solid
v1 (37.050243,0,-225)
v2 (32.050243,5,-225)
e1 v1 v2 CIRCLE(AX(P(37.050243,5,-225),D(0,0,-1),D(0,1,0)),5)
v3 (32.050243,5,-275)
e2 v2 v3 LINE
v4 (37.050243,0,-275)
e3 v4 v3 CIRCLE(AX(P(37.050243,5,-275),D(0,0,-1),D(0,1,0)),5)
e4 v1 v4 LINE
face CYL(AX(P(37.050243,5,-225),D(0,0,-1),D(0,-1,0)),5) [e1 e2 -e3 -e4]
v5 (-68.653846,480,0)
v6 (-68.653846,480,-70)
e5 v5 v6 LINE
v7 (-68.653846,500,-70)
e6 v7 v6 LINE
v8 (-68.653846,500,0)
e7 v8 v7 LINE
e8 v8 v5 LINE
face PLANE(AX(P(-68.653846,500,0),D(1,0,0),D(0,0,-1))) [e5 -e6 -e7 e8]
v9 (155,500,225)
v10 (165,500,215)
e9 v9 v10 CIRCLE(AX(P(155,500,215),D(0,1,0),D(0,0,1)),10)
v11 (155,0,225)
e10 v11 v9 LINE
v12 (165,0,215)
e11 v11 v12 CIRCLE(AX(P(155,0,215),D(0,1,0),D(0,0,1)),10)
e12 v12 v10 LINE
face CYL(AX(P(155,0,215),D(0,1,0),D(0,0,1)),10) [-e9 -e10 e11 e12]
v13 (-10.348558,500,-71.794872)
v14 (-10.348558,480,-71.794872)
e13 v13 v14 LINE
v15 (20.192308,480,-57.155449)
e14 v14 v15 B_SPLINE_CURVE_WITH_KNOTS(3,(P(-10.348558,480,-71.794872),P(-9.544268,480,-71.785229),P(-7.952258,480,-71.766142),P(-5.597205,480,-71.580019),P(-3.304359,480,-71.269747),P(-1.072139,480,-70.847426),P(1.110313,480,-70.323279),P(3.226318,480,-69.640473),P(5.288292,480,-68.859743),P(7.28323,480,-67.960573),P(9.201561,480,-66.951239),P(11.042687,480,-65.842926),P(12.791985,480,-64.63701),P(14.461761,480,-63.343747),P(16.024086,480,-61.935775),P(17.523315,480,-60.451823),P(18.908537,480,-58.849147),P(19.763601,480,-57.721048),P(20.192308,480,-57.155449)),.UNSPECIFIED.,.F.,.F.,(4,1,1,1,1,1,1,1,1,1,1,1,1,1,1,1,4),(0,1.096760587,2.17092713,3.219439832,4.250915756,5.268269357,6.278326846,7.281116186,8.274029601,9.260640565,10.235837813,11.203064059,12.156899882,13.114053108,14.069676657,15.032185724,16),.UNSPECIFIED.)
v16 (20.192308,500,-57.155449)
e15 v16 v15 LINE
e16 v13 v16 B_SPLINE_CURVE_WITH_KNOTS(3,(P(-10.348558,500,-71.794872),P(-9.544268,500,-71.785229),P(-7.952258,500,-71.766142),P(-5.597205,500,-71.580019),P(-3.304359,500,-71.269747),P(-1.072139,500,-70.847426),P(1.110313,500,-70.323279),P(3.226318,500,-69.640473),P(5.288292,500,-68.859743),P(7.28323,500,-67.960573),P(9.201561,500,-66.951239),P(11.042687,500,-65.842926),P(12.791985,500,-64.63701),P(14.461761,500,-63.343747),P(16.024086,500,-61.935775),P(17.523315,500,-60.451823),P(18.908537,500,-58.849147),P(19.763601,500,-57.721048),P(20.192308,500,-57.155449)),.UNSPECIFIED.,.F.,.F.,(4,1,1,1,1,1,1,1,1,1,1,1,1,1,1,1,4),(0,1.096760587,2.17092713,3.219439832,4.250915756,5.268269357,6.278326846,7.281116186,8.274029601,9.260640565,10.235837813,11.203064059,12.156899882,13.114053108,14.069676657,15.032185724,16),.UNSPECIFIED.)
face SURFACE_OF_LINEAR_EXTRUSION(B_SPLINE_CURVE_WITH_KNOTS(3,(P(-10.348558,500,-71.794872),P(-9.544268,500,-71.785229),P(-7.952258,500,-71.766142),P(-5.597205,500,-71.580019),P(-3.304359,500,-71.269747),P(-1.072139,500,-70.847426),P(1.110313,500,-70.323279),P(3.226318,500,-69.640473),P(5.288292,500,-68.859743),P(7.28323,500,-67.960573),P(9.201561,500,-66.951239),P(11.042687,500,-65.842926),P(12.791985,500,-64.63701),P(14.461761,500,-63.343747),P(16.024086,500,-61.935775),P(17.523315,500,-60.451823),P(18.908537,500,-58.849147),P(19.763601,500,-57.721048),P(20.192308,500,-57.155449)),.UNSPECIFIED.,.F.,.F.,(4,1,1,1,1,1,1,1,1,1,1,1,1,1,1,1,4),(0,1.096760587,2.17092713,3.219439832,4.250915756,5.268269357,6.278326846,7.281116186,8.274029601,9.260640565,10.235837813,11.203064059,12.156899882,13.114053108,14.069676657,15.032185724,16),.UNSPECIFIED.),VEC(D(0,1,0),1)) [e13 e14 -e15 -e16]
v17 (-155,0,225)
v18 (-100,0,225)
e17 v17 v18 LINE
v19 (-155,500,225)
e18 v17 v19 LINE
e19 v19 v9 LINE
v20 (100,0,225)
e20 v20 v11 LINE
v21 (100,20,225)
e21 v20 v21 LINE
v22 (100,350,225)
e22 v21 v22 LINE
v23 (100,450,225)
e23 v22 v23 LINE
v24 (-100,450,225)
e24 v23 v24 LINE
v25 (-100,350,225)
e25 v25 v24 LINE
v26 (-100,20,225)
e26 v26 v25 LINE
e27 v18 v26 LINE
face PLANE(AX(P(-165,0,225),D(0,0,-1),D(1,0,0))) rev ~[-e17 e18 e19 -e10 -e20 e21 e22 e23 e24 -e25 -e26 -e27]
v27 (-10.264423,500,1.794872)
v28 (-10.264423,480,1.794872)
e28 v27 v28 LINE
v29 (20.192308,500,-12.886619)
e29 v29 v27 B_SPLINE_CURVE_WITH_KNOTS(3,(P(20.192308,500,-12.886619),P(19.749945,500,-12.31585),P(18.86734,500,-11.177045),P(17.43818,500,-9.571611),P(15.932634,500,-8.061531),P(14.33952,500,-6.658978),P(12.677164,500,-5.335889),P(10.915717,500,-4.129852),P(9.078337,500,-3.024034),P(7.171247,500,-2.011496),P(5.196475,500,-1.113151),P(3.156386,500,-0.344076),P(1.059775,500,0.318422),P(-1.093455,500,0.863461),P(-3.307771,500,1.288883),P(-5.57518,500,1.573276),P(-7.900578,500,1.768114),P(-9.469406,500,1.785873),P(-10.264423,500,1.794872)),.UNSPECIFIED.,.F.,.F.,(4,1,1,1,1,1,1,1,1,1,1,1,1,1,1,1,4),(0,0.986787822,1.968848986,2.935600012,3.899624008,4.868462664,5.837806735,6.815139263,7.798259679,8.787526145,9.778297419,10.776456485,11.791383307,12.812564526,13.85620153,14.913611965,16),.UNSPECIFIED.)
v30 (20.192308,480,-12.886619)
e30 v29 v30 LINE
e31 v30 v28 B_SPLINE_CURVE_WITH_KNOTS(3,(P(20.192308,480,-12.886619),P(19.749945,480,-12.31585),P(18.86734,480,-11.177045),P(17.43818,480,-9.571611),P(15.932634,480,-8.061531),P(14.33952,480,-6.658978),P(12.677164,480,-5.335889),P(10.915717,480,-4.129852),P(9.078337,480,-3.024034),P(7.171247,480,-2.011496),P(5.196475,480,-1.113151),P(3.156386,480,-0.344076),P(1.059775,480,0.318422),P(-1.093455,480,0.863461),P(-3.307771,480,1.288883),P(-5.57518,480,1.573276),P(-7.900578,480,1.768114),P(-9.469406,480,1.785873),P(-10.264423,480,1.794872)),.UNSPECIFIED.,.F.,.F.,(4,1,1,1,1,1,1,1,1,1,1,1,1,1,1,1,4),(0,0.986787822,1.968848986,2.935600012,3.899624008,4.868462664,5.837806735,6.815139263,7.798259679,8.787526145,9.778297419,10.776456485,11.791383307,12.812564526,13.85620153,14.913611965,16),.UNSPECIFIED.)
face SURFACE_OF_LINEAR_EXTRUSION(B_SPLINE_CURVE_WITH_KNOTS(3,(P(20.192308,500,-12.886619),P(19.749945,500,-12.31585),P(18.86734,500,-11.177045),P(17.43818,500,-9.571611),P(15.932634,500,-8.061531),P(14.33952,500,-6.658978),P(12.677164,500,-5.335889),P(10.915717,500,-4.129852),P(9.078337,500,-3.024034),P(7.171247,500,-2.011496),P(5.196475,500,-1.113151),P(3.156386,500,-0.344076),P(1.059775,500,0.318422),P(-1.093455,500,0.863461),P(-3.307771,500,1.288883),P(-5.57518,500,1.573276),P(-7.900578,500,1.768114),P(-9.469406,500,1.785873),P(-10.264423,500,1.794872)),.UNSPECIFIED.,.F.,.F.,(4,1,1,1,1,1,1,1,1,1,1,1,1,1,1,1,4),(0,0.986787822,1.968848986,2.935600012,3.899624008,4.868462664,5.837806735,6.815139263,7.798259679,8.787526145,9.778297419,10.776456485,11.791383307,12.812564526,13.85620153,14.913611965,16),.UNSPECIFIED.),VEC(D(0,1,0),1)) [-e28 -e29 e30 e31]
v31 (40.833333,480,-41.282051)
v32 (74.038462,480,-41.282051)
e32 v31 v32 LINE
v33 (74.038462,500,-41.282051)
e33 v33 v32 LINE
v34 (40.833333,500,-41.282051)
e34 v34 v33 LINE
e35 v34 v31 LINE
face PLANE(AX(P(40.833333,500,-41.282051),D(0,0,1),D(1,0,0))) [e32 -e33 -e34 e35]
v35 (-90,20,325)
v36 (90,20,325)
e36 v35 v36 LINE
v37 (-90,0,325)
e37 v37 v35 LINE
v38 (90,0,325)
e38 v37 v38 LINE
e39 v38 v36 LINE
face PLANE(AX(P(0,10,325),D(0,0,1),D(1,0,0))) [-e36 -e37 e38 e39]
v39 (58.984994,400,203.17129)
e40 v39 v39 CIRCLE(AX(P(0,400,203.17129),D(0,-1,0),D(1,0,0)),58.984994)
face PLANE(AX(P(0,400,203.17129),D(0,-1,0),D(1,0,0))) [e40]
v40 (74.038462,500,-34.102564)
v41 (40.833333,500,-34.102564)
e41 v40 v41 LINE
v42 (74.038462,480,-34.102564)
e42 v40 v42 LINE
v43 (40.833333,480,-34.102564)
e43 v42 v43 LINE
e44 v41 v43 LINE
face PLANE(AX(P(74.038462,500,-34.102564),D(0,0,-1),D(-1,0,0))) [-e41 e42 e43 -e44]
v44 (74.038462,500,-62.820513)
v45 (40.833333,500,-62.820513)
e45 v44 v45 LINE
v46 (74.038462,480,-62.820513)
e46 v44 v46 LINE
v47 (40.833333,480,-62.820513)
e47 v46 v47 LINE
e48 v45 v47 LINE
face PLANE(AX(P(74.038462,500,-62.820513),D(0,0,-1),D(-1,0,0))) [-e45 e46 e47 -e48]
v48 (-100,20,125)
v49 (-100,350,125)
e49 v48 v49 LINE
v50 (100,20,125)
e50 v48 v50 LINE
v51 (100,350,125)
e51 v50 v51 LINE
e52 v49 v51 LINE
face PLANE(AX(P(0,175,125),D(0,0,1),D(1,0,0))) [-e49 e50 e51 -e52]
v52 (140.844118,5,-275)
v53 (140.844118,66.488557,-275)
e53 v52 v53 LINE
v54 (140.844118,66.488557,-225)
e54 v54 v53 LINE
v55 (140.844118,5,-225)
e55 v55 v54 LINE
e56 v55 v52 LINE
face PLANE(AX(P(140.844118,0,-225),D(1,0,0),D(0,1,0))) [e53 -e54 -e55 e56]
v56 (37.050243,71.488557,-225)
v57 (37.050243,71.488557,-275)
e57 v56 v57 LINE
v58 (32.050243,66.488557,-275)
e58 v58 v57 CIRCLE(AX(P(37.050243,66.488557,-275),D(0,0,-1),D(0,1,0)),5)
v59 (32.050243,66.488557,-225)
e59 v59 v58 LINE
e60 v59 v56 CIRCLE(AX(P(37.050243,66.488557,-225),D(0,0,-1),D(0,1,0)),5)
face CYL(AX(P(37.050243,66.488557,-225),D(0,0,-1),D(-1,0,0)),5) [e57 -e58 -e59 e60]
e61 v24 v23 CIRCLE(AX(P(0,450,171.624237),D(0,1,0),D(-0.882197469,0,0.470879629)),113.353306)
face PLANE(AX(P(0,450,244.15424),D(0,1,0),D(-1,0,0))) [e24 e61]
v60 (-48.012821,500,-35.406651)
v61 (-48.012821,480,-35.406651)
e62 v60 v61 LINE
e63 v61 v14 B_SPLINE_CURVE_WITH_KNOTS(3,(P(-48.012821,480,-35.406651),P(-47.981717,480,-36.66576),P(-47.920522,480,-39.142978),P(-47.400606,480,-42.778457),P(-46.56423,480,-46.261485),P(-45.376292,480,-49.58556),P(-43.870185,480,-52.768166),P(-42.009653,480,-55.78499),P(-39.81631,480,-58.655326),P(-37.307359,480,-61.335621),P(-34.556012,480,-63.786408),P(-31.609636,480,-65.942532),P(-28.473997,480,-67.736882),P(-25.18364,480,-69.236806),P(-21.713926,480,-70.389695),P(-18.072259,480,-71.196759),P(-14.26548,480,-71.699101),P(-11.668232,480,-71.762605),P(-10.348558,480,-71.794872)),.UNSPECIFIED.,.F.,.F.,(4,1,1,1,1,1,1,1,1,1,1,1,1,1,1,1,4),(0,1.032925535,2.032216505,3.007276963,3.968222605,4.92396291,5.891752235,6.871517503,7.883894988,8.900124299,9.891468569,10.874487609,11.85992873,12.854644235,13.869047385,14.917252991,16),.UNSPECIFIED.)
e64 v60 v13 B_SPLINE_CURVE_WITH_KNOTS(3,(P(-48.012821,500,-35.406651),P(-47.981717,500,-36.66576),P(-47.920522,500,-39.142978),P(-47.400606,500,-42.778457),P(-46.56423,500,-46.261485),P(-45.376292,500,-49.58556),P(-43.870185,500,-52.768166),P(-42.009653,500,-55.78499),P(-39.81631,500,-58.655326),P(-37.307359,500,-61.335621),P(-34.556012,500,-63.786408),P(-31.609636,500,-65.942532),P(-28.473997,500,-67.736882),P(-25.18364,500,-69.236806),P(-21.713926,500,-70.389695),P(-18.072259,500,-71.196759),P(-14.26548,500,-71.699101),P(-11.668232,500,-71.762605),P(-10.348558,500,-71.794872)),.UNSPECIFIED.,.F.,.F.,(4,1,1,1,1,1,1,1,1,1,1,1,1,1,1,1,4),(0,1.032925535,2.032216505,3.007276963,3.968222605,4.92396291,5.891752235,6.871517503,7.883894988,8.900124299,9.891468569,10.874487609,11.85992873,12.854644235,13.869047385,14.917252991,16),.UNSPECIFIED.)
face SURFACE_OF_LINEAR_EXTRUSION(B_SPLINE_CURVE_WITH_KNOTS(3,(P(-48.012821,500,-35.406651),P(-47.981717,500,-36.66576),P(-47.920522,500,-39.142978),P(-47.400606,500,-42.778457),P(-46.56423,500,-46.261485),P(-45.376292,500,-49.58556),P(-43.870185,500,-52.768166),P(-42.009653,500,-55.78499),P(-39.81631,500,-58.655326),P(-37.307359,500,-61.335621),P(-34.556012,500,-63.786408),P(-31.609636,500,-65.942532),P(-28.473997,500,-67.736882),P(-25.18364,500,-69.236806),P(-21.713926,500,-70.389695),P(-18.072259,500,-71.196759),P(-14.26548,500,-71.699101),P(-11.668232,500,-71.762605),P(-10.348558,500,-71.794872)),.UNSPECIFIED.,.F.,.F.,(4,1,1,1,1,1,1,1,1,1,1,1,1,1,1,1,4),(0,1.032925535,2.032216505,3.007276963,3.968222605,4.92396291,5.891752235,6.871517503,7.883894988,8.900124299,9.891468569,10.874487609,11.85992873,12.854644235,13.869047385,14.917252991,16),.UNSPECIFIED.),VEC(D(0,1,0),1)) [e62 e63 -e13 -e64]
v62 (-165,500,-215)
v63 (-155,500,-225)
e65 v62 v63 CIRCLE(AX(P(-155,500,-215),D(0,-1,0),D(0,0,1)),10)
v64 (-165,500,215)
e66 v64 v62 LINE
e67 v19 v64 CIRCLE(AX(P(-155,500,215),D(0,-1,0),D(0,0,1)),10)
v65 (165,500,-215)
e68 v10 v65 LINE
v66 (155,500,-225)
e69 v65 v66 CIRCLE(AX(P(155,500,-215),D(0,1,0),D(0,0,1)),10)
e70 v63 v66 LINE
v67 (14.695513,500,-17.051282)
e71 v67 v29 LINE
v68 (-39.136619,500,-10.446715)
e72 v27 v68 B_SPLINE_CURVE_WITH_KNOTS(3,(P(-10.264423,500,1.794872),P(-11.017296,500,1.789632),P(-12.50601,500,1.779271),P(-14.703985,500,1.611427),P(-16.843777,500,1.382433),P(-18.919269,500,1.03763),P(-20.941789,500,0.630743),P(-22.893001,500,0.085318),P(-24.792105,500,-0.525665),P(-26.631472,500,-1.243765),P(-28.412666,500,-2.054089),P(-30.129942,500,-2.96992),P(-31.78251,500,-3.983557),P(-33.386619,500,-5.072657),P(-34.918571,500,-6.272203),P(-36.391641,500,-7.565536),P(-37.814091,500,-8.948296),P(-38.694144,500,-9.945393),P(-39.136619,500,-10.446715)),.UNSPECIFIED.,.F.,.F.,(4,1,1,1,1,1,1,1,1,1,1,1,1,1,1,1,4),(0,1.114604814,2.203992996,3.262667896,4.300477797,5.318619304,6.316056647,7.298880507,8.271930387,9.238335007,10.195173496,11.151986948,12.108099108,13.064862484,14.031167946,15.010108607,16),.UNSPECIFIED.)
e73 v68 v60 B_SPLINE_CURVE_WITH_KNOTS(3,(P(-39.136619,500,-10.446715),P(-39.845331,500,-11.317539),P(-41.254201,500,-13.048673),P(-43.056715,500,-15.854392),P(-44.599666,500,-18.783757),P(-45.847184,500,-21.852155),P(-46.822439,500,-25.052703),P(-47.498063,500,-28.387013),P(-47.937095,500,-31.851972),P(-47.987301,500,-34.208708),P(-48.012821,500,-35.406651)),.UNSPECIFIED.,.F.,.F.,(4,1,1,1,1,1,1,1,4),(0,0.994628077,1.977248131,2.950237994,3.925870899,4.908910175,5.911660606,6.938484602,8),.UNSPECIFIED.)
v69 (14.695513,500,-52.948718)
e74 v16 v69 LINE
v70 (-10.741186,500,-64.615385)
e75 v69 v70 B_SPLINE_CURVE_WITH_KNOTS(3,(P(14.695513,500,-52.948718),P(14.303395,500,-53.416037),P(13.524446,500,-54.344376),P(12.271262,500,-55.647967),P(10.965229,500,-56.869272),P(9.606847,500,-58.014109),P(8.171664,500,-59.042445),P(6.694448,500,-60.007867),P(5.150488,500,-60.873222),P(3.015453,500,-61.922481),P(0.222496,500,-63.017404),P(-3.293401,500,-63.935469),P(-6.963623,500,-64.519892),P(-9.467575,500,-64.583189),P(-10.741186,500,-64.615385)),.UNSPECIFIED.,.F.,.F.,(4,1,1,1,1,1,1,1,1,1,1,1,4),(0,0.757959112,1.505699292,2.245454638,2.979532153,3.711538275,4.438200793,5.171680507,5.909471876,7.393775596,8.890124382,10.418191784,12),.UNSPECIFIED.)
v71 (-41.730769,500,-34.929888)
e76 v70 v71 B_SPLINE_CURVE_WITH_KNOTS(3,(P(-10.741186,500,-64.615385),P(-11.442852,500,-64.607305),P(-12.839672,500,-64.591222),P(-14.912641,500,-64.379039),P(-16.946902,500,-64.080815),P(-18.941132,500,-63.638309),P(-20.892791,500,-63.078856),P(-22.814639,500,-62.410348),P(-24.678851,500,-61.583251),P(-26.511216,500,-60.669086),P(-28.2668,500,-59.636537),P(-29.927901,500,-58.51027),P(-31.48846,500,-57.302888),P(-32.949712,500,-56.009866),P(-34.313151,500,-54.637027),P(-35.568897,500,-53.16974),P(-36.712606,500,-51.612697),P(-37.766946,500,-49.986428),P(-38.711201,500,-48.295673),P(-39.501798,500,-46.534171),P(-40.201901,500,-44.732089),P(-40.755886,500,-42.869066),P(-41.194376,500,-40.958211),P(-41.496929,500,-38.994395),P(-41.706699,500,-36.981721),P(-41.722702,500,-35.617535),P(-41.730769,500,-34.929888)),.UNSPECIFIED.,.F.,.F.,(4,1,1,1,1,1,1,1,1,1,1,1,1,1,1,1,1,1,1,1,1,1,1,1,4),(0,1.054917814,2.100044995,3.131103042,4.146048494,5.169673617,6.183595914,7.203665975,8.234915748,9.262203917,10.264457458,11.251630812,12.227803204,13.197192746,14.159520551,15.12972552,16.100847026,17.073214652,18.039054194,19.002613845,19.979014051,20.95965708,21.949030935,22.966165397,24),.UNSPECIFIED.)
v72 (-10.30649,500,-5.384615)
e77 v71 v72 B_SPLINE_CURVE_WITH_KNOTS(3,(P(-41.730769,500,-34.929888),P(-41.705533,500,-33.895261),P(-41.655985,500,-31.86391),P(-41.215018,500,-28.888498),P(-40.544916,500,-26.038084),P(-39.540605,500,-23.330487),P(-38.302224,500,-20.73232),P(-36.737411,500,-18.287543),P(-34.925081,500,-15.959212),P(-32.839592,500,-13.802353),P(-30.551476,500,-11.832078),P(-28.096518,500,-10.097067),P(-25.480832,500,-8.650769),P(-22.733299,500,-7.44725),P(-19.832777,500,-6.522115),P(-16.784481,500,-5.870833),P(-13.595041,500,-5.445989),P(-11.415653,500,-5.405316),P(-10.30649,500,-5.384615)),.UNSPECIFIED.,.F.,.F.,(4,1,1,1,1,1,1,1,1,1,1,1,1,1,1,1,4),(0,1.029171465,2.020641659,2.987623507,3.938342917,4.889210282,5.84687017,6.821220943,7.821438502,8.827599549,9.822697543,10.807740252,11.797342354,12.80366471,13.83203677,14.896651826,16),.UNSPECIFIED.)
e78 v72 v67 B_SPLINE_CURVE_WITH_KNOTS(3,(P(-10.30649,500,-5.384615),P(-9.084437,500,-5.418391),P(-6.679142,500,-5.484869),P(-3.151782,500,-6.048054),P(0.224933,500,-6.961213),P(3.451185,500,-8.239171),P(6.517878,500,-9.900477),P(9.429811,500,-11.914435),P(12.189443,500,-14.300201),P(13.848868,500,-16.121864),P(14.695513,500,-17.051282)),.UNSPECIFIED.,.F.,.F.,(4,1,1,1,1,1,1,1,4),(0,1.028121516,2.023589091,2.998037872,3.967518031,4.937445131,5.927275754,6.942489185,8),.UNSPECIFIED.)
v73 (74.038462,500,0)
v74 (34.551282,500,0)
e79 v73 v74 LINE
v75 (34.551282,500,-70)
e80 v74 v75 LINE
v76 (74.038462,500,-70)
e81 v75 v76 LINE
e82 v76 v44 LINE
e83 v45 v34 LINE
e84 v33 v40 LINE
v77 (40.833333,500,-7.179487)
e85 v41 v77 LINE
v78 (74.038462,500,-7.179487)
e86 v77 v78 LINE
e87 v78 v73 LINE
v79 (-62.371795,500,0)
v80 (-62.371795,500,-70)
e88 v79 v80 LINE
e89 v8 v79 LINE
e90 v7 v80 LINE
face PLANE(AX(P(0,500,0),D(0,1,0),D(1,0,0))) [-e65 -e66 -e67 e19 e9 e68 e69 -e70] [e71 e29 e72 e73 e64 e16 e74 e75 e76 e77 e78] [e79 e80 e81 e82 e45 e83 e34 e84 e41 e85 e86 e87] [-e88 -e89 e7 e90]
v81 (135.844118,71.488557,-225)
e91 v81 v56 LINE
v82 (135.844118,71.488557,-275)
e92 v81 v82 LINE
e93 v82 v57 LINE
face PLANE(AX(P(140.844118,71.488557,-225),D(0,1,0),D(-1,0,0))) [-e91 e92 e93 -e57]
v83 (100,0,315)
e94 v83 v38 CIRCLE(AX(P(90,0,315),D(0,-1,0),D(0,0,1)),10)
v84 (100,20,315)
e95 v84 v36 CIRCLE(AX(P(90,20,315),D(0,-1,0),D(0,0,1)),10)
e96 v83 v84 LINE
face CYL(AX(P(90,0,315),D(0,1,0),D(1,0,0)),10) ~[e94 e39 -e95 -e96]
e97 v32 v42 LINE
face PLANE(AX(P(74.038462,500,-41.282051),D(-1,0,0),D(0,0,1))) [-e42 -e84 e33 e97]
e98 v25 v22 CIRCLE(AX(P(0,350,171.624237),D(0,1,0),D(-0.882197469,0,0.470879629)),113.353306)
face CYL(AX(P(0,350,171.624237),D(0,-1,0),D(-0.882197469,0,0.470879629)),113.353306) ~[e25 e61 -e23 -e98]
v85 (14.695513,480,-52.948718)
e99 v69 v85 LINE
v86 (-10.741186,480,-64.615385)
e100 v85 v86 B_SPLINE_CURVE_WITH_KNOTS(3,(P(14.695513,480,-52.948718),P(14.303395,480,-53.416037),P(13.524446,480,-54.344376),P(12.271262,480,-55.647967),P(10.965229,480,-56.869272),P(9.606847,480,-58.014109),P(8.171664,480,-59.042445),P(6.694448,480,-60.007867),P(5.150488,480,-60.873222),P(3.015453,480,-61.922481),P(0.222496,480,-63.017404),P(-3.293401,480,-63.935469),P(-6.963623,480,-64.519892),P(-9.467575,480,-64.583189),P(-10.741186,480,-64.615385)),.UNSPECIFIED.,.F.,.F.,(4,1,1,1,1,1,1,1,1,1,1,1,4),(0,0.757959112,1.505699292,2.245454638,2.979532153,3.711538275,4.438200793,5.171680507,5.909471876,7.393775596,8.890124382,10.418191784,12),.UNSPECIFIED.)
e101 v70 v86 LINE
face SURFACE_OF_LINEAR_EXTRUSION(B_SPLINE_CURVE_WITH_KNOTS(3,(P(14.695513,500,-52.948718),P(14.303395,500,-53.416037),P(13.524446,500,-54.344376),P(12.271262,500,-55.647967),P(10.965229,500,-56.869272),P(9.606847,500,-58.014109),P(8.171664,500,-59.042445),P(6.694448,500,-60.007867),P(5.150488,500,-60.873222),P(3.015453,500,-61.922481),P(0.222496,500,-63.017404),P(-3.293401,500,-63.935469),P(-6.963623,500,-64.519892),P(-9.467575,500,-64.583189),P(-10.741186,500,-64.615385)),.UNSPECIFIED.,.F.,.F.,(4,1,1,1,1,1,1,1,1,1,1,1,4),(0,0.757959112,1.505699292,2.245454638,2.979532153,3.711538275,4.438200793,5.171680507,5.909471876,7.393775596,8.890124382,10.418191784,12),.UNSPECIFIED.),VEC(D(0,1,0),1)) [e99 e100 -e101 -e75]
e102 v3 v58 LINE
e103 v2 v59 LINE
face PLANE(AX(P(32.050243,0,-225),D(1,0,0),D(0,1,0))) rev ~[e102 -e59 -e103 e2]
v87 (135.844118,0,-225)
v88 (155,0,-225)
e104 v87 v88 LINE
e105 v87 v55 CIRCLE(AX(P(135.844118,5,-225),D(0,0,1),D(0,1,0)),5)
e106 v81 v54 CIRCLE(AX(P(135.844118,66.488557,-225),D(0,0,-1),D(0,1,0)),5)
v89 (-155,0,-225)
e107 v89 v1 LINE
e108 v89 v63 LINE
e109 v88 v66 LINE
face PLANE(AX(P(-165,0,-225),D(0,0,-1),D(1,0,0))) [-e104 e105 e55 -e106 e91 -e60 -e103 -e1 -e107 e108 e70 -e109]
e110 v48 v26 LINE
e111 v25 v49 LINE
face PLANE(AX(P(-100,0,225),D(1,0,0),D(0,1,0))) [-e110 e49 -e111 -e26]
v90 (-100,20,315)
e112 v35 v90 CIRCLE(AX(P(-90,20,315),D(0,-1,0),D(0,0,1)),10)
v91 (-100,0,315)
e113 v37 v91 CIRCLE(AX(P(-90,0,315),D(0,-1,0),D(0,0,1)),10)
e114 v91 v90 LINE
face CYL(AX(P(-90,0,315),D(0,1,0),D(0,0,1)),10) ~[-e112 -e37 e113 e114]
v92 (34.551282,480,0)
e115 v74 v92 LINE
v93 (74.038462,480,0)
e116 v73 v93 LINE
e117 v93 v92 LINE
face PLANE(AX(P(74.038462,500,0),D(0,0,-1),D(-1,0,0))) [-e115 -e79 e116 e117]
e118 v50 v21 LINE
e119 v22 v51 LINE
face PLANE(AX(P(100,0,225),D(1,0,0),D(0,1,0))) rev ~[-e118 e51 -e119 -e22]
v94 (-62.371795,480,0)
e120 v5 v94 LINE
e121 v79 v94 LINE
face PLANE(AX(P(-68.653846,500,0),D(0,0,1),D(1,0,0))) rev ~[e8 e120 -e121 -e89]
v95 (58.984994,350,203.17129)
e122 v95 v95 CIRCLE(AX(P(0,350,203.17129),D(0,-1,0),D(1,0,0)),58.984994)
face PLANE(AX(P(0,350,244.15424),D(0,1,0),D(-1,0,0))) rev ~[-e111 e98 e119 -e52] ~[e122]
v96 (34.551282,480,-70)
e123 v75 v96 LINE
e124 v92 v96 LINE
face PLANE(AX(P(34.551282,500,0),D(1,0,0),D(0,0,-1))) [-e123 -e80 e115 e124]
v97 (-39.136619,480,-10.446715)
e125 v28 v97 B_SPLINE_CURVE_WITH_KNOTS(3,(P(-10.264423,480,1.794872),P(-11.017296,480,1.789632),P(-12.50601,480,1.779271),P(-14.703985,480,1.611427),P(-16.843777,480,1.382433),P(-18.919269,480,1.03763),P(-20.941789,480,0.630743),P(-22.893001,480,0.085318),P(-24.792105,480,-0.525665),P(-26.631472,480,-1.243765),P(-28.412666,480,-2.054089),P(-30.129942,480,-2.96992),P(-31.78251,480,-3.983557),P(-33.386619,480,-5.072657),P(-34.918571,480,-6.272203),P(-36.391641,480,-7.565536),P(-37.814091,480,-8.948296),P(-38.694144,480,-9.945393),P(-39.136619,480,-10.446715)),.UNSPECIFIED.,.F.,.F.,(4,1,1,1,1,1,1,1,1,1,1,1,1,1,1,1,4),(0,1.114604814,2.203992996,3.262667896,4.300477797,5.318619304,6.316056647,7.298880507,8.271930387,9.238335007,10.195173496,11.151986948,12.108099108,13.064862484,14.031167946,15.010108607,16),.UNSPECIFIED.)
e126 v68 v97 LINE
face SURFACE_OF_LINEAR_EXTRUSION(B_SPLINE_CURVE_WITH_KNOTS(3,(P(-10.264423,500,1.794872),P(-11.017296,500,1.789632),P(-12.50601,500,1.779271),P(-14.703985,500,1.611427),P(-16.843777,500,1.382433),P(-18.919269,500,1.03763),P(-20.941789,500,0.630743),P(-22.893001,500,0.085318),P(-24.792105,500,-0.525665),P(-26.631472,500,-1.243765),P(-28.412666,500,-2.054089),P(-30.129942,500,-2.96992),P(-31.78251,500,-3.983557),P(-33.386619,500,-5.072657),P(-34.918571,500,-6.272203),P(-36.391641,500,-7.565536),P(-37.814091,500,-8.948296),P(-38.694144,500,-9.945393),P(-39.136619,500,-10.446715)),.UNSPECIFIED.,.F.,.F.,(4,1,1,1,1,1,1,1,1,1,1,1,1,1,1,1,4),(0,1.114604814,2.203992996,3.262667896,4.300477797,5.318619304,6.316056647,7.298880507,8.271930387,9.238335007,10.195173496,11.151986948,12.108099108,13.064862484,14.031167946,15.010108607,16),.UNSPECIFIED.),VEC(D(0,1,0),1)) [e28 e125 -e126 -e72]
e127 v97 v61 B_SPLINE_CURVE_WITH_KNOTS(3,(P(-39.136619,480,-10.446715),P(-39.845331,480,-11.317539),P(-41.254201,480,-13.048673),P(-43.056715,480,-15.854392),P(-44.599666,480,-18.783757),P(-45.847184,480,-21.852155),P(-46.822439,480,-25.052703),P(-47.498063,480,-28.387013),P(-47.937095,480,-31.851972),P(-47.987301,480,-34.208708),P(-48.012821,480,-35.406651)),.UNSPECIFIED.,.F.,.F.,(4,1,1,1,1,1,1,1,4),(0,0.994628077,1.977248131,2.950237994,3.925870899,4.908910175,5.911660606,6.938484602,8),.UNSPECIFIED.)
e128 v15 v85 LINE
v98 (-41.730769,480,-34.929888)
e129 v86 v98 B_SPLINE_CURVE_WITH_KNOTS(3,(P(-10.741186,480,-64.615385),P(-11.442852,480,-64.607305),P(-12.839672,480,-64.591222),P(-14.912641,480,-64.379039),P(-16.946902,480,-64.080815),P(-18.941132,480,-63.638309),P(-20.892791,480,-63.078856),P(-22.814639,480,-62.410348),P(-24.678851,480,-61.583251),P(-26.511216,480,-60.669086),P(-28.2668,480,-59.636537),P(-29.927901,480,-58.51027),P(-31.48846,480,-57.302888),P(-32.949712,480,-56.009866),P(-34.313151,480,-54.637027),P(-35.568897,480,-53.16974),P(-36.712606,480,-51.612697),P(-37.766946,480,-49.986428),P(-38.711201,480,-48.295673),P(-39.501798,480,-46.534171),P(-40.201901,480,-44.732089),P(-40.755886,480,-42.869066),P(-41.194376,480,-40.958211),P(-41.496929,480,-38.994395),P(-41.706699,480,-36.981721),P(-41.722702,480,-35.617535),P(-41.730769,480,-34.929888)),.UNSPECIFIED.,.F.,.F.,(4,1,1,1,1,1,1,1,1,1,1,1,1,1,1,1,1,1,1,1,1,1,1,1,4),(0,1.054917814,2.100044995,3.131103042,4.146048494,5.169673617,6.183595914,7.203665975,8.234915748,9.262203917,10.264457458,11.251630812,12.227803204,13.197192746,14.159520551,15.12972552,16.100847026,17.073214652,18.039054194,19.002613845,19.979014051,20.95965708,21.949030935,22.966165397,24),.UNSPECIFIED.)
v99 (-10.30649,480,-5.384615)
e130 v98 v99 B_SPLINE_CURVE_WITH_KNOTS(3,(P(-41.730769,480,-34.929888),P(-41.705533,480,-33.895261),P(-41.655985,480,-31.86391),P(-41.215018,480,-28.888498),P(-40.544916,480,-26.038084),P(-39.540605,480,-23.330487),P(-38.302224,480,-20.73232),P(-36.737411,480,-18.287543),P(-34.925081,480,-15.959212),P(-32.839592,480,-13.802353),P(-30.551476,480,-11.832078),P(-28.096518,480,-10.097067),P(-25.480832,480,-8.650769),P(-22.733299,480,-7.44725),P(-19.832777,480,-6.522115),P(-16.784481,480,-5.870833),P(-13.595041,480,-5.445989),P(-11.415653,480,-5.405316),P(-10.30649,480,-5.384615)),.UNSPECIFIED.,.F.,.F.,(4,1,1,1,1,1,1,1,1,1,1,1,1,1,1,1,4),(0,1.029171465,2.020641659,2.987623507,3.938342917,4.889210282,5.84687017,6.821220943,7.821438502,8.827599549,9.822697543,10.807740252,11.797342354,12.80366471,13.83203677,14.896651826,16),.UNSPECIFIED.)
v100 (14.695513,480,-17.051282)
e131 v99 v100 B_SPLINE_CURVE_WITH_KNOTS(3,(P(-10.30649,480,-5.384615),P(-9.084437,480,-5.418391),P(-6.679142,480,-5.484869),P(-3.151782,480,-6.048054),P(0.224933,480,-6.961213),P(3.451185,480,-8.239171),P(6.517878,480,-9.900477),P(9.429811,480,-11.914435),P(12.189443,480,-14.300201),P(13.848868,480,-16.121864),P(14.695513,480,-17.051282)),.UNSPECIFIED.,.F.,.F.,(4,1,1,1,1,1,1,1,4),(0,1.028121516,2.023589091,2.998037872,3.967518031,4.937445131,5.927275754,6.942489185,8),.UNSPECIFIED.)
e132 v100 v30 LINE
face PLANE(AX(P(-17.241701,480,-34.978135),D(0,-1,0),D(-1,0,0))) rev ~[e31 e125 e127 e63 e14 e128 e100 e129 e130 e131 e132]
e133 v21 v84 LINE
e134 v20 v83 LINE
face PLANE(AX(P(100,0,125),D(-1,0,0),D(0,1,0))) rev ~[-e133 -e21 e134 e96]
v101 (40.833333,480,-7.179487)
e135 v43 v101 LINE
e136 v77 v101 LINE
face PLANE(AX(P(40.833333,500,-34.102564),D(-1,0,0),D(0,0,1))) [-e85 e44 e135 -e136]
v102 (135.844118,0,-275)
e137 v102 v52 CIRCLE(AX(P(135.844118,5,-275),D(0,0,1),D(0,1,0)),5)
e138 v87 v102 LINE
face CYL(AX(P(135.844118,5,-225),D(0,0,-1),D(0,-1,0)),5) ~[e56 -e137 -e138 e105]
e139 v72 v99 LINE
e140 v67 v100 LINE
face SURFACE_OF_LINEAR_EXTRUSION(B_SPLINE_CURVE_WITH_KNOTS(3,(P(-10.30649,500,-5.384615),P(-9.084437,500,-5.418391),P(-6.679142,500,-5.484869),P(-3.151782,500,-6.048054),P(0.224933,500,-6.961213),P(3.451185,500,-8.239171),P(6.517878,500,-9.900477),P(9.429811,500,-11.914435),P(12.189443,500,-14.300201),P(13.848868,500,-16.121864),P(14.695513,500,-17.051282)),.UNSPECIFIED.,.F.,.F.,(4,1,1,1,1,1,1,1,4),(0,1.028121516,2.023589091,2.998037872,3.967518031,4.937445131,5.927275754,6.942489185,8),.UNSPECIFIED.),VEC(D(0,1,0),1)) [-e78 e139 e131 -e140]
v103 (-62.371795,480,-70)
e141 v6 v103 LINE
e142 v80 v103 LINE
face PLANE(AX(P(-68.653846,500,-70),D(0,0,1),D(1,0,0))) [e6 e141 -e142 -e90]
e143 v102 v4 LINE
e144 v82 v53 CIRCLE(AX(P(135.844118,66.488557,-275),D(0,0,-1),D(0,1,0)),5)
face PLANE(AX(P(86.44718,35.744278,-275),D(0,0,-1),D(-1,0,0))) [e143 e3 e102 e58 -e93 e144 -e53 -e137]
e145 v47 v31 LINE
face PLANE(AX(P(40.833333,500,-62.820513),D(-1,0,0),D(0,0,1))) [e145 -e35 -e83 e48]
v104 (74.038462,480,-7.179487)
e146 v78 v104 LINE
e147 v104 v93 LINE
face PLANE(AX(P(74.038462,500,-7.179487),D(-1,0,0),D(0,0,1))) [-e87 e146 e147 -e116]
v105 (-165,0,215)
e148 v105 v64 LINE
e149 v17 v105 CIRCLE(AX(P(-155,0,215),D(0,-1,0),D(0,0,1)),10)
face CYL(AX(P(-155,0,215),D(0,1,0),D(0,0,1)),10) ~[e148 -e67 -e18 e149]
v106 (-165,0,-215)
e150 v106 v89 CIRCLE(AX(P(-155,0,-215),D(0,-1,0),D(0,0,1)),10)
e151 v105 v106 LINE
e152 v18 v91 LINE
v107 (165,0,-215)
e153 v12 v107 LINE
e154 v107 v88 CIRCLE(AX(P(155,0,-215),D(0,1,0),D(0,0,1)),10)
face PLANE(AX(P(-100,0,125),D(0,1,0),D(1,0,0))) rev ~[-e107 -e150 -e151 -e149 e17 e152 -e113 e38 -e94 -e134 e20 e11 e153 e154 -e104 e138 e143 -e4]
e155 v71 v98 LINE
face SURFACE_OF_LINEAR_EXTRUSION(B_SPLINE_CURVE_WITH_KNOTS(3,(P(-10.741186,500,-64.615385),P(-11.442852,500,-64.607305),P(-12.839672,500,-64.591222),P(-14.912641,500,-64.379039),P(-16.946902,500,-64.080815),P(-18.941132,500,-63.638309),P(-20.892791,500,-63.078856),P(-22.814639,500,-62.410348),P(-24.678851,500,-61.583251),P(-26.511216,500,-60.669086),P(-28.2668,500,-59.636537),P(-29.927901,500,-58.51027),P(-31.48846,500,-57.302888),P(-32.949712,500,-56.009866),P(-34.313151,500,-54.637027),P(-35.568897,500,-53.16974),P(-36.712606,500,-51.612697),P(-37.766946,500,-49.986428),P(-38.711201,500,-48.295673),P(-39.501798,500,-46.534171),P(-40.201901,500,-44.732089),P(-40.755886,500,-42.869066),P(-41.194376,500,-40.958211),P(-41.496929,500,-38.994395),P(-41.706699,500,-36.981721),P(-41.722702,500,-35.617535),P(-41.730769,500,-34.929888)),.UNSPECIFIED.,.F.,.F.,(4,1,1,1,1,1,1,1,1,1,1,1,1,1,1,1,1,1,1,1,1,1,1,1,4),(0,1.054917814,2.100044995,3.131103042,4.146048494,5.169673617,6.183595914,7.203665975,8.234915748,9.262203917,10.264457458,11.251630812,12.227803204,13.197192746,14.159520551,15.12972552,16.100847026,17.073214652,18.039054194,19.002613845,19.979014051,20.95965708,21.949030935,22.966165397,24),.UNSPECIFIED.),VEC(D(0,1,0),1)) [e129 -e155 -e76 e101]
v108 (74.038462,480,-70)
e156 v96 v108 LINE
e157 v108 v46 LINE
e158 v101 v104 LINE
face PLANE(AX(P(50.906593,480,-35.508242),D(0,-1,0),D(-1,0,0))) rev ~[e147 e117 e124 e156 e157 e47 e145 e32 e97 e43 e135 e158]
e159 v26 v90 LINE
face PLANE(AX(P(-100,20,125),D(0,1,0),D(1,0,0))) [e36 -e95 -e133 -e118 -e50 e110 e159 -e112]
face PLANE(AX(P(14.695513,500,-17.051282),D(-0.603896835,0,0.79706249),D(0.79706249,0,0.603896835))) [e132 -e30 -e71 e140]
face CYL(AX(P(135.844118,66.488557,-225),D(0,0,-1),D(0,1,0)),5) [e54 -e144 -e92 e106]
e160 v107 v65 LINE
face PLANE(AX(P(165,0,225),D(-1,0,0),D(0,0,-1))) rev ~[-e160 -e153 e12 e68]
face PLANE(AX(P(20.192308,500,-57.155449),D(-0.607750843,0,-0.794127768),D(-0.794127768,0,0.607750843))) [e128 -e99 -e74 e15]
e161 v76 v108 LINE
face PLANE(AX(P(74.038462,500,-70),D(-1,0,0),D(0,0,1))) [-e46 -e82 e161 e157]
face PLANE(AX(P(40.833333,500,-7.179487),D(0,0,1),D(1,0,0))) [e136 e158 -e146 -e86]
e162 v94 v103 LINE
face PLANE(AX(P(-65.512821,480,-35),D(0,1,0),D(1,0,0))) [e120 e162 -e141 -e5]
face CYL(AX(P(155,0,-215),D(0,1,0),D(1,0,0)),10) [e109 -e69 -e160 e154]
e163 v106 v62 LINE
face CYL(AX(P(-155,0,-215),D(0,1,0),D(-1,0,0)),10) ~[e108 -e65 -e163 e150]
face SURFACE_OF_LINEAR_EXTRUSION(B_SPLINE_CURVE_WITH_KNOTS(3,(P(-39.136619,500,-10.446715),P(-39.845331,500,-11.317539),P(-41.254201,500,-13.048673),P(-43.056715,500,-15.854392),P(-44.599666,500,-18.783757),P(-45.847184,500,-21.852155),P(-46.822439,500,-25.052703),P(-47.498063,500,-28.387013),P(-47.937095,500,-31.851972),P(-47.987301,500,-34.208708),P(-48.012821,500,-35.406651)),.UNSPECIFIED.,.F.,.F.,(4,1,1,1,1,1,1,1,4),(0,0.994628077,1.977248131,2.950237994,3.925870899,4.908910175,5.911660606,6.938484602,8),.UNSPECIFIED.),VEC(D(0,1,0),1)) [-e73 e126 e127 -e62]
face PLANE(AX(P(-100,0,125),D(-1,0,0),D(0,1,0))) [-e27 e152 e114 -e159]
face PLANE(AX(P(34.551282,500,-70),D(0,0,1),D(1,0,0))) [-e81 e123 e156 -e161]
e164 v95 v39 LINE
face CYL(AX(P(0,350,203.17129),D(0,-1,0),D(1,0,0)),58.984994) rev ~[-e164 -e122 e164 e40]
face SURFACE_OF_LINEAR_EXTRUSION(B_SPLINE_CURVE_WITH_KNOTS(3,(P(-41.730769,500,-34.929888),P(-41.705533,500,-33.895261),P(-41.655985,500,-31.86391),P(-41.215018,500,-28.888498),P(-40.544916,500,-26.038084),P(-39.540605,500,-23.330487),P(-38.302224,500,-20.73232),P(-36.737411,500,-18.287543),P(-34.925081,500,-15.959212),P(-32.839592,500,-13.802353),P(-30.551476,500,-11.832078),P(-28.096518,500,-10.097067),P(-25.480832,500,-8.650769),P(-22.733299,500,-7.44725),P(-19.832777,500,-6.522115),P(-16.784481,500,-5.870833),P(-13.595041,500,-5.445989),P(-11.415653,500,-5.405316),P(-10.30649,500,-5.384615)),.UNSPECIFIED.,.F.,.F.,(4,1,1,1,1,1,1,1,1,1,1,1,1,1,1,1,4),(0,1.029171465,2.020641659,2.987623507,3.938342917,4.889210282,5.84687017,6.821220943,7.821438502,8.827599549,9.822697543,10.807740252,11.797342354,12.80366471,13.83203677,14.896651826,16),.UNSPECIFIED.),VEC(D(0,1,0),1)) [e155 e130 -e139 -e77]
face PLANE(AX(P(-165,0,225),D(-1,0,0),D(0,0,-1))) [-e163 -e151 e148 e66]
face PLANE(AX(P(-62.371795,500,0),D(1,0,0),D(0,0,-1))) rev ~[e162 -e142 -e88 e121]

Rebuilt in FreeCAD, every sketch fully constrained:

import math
import FreeCAD as App
import Part
import Sketcher

V = App.Vector


def edges_at(feature, points):
    """Names of the edges that pass closest to the given points."""
    edges = feature.Shape.Edges
    near = lambda p: min(range(len(edges)), key=lambda i: edges[i].distToShape(Part.Vertex(*p))[0])
    return sorted({f"Edge{near(p) + 1}" for p in points})


def add_polygon(sketch, points):
    """Adds a closed chain of lines whose ends are joined by coincident constraints."""
    first, n = sketch.GeometryCount, len(points)
    for a, b in zip(points, points[1:] + points[:1]):
        sketch.addGeometry(Part.LineSegment(App.Vector(*a, 0), App.Vector(*b, 0)), False)
    for i in range(n):
        sketch.addConstraint(Sketcher.Constraint("Coincident", first + i, 2, first + (i + 1) % n, 1))

doc = App.newDocument("Part")
body = doc.addObject("PartDesign::Body", "Body")

sketch1 = body.newObject("Sketcher::SketchObject", "Sketch")
sketch1.AttachmentSupport = (doc.getObject("XZ_Plane"), [""])
sketch1.MapMode = "FlatFace"
add_polygon(sketch1, [(-165, -225), (-165, 225), (165, 225), (165, -225)])
sketch1.addConstraint([
    Sketcher.Constraint("Vertical", 0),
    Sketcher.Constraint("Horizontal", 1),
    Sketcher.Constraint("Vertical", 2),
    Sketcher.Constraint("Horizontal", 3),
    Sketcher.Constraint("Symmetric", 0, 2, 2, 2, -1, 1),
    Sketcher.Constraint("DistanceX", 1, 1, 1, 2, 330.0),
    Sketcher.Constraint("DistanceY", 0, 1, 0, 2, 450.0),
])
pad1 = body.newObject("PartDesign::Pad", "Pad")
pad1.Profile = sketch1
pad1.Length = 500
pad1.Reversed = True

sketch2 = body.newObject("Sketcher::SketchObject", "Sketch001")
sketch2.AttachmentSupport = (doc.getObject("XY_Plane"), [""])
sketch2.MapMode = "FlatFace"
sketch2.AttachmentOffset = App.Placement(V(0, 0, 225), App.Rotation())
add_polygon(sketch2, [(-100, 350), (-100, 0), (100, 0), (100, 350)])
sketch2.addConstraint([
    Sketcher.Constraint("Vertical", 0),
    Sketcher.Constraint("Horizontal", 1),
    Sketcher.Constraint("Vertical", 2),
    Sketcher.Constraint("Horizontal", 3),
    Sketcher.Constraint("Symmetric", 0, 2, 1, 2, -1, 1),
    Sketcher.Constraint("DistanceX", 1, 1, 1, 2, 200.0),
    Sketcher.Constraint("DistanceY", 0, 2, 0, 1, 350.0),
])
pocket1 = body.newObject("PartDesign::Pocket", "Pocket")
pocket1.Profile = sketch2
pocket1.Length = 100

sketch3 = body.newObject("Sketcher::SketchObject", "Sketch002")
sketch3.AttachmentSupport = (doc.getObject("XZ_Plane"), [""])
sketch3.MapMode = "FlatFace"
sketch3.AttachmentOffset = App.Placement(V(0, 0, -350), App.Rotation())
sketch3.addGeometry([
    Part.LineSegment(V(-100, 225, 0), V(100, 225, 0)),
    Part.ArcOfCircle(Part.Circle(V(0, 172, 0), V(0, 0, 1), 113), math.radians(28), math.radians(152)),
], False)
sketch3.addConstraint([
    Sketcher.Constraint("Coincident", 0, 1, 1, 2),
    Sketcher.Constraint("Coincident", 1, 1, 0, 2),
    Sketcher.Constraint("Horizontal", 0),
    Sketcher.Constraint("PointOnObject", 1, 3, -2),
    Sketcher.Constraint("DistanceX", 0, 1, 0, 2, 200.0),
    Sketcher.Constraint("DistanceY", -1, 1, 0, 1, 225.0),
    Sketcher.Constraint("Radius", 1, 113.353306),
])
pad2 = body.newObject("PartDesign::Pad", "Pad001")
pad2.Profile = sketch3
pad2.Length = 100
pad2.Reversed = True

sketch4 = body.newObject("Sketcher::SketchObject", "Sketch003")
sketch4.AttachmentSupport = (doc.getObject("XY_Plane"), [""])
sketch4.MapMode = "FlatFace"
sketch4.AttachmentOffset = App.Placement(V(0, 0, 125), App.Rotation())
add_polygon(sketch4, [(-100, 20), (-100, 0), (100, 0), (100, 20)])
sketch4.addConstraint([
    Sketcher.Constraint("Vertical", 0),
    Sketcher.Constraint("Horizontal", 1),
    Sketcher.Constraint("Vertical", 2),
    Sketcher.Constraint("Horizontal", 3),
    Sketcher.Constraint("Symmetric", 0, 2, 1, 2, -1, 1),
    Sketcher.Constraint("DistanceX", 1, 1, 1, 2, 200.0),
    Sketcher.Constraint("DistanceY", 0, 2, 0, 1, 20.0),
])
pad3 = body.newObject("PartDesign::Pad", "Pad002")
pad3.Profile = sketch4
pad3.Length = 200

sketch5 = body.newObject("Sketcher::SketchObject", "Sketch004")
sketch5.AttachmentSupport = (doc.getObject("XZ_Plane"), [""])
sketch5.MapMode = "FlatFace"
sketch5.AttachmentOffset = App.Placement(V(0, 0, -350), App.Rotation())
sketch5.addGeometry(Part.Circle(V(0, 203, 0), V(0, 0, 1), 59), False)
sketch5.addConstraint([
    Sketcher.Constraint("PointOnObject", 0, 3, -2),
    Sketcher.Constraint("Diameter", 0, 117.969987),
    Sketcher.Constraint("DistanceY", -1, 1, 0, 3, 203.17129),
])
pocket2 = body.newObject("PartDesign::Pocket", "Pocket001")
pocket2.Profile = sketch5
pocket2.Length = 50
doc.recompute()

fillet = body.newObject("PartDesign::Fillet", "Fillet")
fillet.Base = (pocket2, edges_at(pocket2, [
    (165, 250, 225),
    (-165, 250, 225),
    (-165, 250, -225),
    (165, 250, -225),
]))
fillet.Radius = 10

sketch6 = body.newObject("Sketcher::SketchObject", "Sketch005")
sketch6.AttachmentSupport = (doc.getObject("XY_Plane"), [""])
sketch6.MapMode = "FlatFace"
sketch6.AttachmentOffset = App.Placement(V(0, 0, -225), App.Rotation())
add_polygon(sketch6, [(141, 71), (141, 0), (32, 0), (32, 71)])
sketch6.addConstraint([
    Sketcher.Constraint("Vertical", 0),
    Sketcher.Constraint("Horizontal", 1),
    Sketcher.Constraint("Vertical", 2),
    Sketcher.Constraint("Horizontal", 3),
    Sketcher.Constraint("PointOnObject", 0, 2, -1),
    Sketcher.Constraint("DistanceX", 1, 2, 1, 1, 108.793876),
    Sketcher.Constraint("DistanceY", 0, 2, 0, 1, 71.488557),
    Sketcher.Constraint("DistanceX", -1, 1, 0, 2, 140.844118),
])
pad4 = body.newObject("PartDesign::Pad", "Pad003")
pad4.Profile = sketch6
pad4.Length = 50
pad4.Reversed = True
doc.recompute()

fillet2 = body.newObject("PartDesign::Fillet", "Fillet001")
fillet2.Base = (pad4, edges_at(pad4, [
    (140.844, 71.489, -250),
    (140.844, 0, -250),
    (32.05, 0, -250),
    (32.05, 71.489, -250),
]))
fillet2.Radius = 5
doc.recompute()

fillet3 = body.newObject("PartDesign::Fillet", "Fillet002")
fillet3.Base = (fillet2, edges_at(fillet2, [(-100, 10, 325), (100, 10, 325)]))
fillet3.Radius = 10

sketch7 = body.newObject("Sketcher::SketchObject", "Sketch006")
sketch7.AttachmentSupport = (doc.getObject("XZ_Plane"), [""])
sketch7.MapMode = "FlatFace"
sketch7.AttachmentOffset = App.Placement(V(0, 0, -500), App.Rotation())
add_polygon(sketch7, [(-68.653846, -70), (-68.653846, 0), (-62.371795, 0), (-62.371795, -70)])
sketch7.addGeometry(Part.LineSegment(V(14.695513, -52.948718, 0), V(20.192308, -57.155449, 0)), False)
sketch7.addGeometry(Part.BSplineCurve([V(-10.348558, -71.794872, 0), V(-9.544268, -71.785229, 0), V(-7.952258, -71.766142, 0), V(-5.597205, -71.580019, 0), V(-3.304359, -71.269747, 0), V(-1.072139, -70.847426, 0), V(1.110313, -70.323279, 0), V(3.226318, -69.640473, 0), V(5.288292, -68.859743, 0), V(7.28323, -67.960573, 0), V(9.201561, -66.951239, 0), V(11.042687, -65.842926, 0), V(12.791985, -64.63701, 0), V(14.461761, -63.343747, 0), V(16.024086, -61.935775, 0), V(17.523315, -60.451823, 0), V(18.908537, -58.849147, 0), V(19.763601, -57.721048, 0), V(20.192308, -57.155449, 0)], [4, 1, 1, 1, 1, 1, 1, 1, 1, 1, 1, 1, 1, 1, 1, 1, 4], [0, 1.096760587, 2.17092713, 3.219439832, 4.250915756, 5.268269357, 6.278326846, 7.281116186, 8.274029601, 9.260640565, 10.235837813, 11.203064059, 12.156899882, 13.114053108, 14.069676657, 15.032185724, 16], False, 3, [1, 1, 1, 1, 1, 1, 1, 1, 1, 1, 1, 1, 1, 1, 1, 1, 1, 1, 1], False), False)
sketch7.addGeometry(Part.BSplineCurve([V(-48.012821, -35.406651, 0), V(-47.981717, -36.66576, 0), V(-47.920522, -39.142978, 0), V(-47.400606, -42.778457, 0), V(-46.56423, -46.261485, 0), V(-45.376292, -49.58556, 0), V(-43.870185, -52.768166, 0), V(-42.009653, -55.78499, 0), V(-39.81631, -58.655326, 0), V(-37.307359, -61.335621, 0), V(-34.556012, -63.786408, 0), V(-31.609636, -65.942532, 0), V(-28.473997, -67.736882, 0), V(-25.18364, -69.236806, 0), V(-21.713926, -70.389695, 0), V(-18.072259, -71.196759, 0), V(-14.26548, -71.699101, 0), V(-11.668232, -71.762605, 0), V(-10.348558, -71.794872, 0)], [4, 1, 1, 1, 1, 1, 1, 1, 1, 1, 1, 1, 1, 1, 1, 1, 4], [0, 1.032925535, 2.032216505, 3.007276963, 3.968222605, 4.92396291, 5.891752235, 6.871517503, 7.883894988, 8.900124299, 9.891468569, 10.874487609, 11.85992873, 12.854644235, 13.869047385, 14.917252991, 16], False, 3, [1, 1, 1, 1, 1, 1, 1, 1, 1, 1, 1, 1, 1, 1, 1, 1, 1, 1, 1], False), False)
sketch7.addGeometry(Part.BSplineCurve([V(-39.136619, -10.446715, 0), V(-39.845331, -11.317539, 0), V(-41.254201, -13.048673, 0), V(-43.056715, -15.854392, 0), V(-44.599666, -18.783757, 0), V(-45.847184, -21.852155, 0), V(-46.822439, -25.052703, 0), V(-47.498063, -28.387013, 0), V(-47.937095, -31.851972, 0), V(-47.987301, -34.208708, 0), V(-48.012821, -35.406651, 0)], [4, 1, 1, 1, 1, 1, 1, 1, 4], [0, 0.994628077, 1.977248131, 2.950237994, 3.925870899, 4.908910175, 5.911660606, 6.938484602, 8], False, 3, [1, 1, 1, 1, 1, 1, 1, 1, 1, 1, 1], False), False)
sketch7.addGeometry(Part.BSplineCurve([V(-10.264423, 1.794872, 0), V(-11.017296, 1.789632, 0), V(-12.50601, 1.779271, 0), V(-14.703985, 1.611427, 0), V(-16.843777, 1.382433, 0), V(-18.919269, 1.03763, 0), V(-20.941789, 0.630743, 0), V(-22.893001, 0.085318, 0), V(-24.792105, -0.525665, 0), V(-26.631472, -1.243765, 0), V(-28.412666, -2.054089, 0), V(-30.129942, -2.96992, 0), V(-31.78251, -3.983557, 0), V(-33.386619, -5.072657, 0), V(-34.918571, -6.272203, 0), V(-36.391641, -7.565536, 0), V(-37.814091, -8.948296, 0), V(-38.694144, -9.945393, 0), V(-39.136619, -10.446715, 0)], [4, 1, 1, 1, 1, 1, 1, 1, 1, 1, 1, 1, 1, 1, 1, 1, 4], [0, 1.114604814, 2.203992996, 3.262667896, 4.300477797, 5.318619304, 6.316056647, 7.298880507, 8.271930387, 9.238335007, 10.195173496, 11.151986948, 12.108099108, 13.064862484, 14.031167946, 15.010108607, 16], False, 3, [1, 1, 1, 1, 1, 1, 1, 1, 1, 1, 1, 1, 1, 1, 1, 1, 1, 1, 1], False), False)
sketch7.addGeometry(Part.BSplineCurve([V(20.192308, -12.886619, 0), V(19.749945, -12.31585, 0), V(18.86734, -11.177045, 0), V(17.43818, -9.571611, 0), V(15.932634, -8.061531, 0), V(14.33952, -6.658978, 0), V(12.677164, -5.335889, 0), V(10.915717, -4.129852, 0), V(9.078337, -3.024034, 0), V(7.171247, -2.011496, 0), V(5.196475, -1.113151, 0), V(3.156386, -0.344076, 0), V(1.059775, 0.318422, 0), V(-1.093455, 0.863461, 0), V(-3.307771, 1.288883, 0), V(-5.57518, 1.573276, 0), V(-7.900578, 1.768114, 0), V(-9.469406, 1.785873, 0), V(-10.264423, 1.794872, 0)], [4, 1, 1, 1, 1, 1, 1, 1, 1, 1, 1, 1, 1, 1, 1, 1, 4], [0, 0.986787822, 1.968848986, 2.935600012, 3.899624008, 4.868462664, 5.837806735, 6.815139263, 7.798259679, 8.787526145, 9.778297419, 10.776456485, 11.791383307, 12.812564526, 13.85620153, 14.913611965, 16], False, 3, [1, 1, 1, 1, 1, 1, 1, 1, 1, 1, 1, 1, 1, 1, 1, 1, 1, 1, 1], False), False)
sketch7.addGeometry(Part.LineSegment(V(20.192308, -12.886619, 0), V(14.695513, -17.051282, 0)), False)
sketch7.addGeometry(Part.BSplineCurve([V(-10.30649, -5.384615, 0), V(-9.084437, -5.418391, 0), V(-6.679142, -5.484869, 0), V(-3.151782, -6.048054, 0), V(0.224933, -6.961213, 0), V(3.451185, -8.239171, 0), V(6.517878, -9.900477, 0), V(9.429811, -11.914435, 0), V(12.189443, -14.300201, 0), V(13.848868, -16.121864, 0), V(14.695513, -17.051282, 0)], [4, 1, 1, 1, 1, 1, 1, 1, 4], [0, 1.028121516, 2.023589091, 2.998037872, 3.967518031, 4.937445131, 5.927275754, 6.942489185, 8], False, 3, [1, 1, 1, 1, 1, 1, 1, 1, 1, 1, 1], False), False)
sketch7.addGeometry(Part.BSplineCurve([V(-41.730769, -34.929888, 0), V(-41.705533, -33.895261, 0), V(-41.655985, -31.86391, 0), V(-41.215018, -28.888498, 0), V(-40.544916, -26.038084, 0), V(-39.540605, -23.330487, 0), V(-38.302224, -20.73232, 0), V(-36.737411, -18.287543, 0), V(-34.925081, -15.959212, 0), V(-32.839592, -13.802353, 0), V(-30.551476, -11.832078, 0), V(-28.096518, -10.097067, 0), V(-25.480832, -8.650769, 0), V(-22.733299, -7.44725, 0), V(-19.832777, -6.522115, 0), V(-16.784481, -5.870833, 0), V(-13.595041, -5.445989, 0), V(-11.415653, -5.405316, 0), V(-10.30649, -5.384615, 0)], [4, 1, 1, 1, 1, 1, 1, 1, 1, 1, 1, 1, 1, 1, 1, 1, 4], [0, 1.029171465, 2.020641659, 2.987623507, 3.938342917, 4.889210282, 5.84687017, 6.821220943, 7.821438502, 8.827599549, 9.822697543, 10.807740252, 11.797342354, 12.80366471, 13.83203677, 14.896651826, 16], False, 3, [1, 1, 1, 1, 1, 1, 1, 1, 1, 1, 1, 1, 1, 1, 1, 1, 1, 1, 1], False), False)
sketch7.addGeometry(Part.BSplineCurve([V(-10.741186, -64.615385, 0), V(-11.442852, -64.607305, 0), V(-12.839672, -64.591222, 0), V(-14.912641, -64.379039, 0), V(-16.946902, -64.080815, 0), V(-18.941132, -63.638309, 0), V(-20.892791, -63.078856, 0), V(-22.814639, -62.410348, 0), V(-24.678851, -61.583251, 0), V(-26.511216, -60.669086, 0), V(-28.2668, -59.636537, 0), V(-29.927901, -58.51027, 0), V(-31.48846, -57.302888, 0), V(-32.949712, -56.009866, 0), V(-34.313151, -54.637027, 0), V(-35.568897, -53.16974, 0), V(-36.712606, -51.612697, 0), V(-37.766946, -49.986428, 0), V(-38.711201, -48.295673, 0), V(-39.501798, -46.534171, 0), V(-40.201901, -44.732089, 0), V(-40.755886, -42.869066, 0), V(-41.194376, -40.958211, 0), V(-41.496929, -38.994395, 0), V(-41.706699, -36.981721, 0), V(-41.722702, -35.617535, 0), V(-41.730769, -34.929888, 0)], [4, 1, 1, 1, 1, 1, 1, 1, 1, 1, 1, 1, 1, 1, 1, 1, 1, 1, 1, 1, 1, 1, 1, 1, 4], [0, 1.054917814, 2.100044995, 3.131103042, 4.146048494, 5.169673617, 6.183595914, 7.203665975, 8.234915748, 9.262203917, 10.264457458, 11.251630812, 12.227803204, 13.197192746, 14.159520551, 15.12972552, 16.100847026, 17.073214652, 18.039054194, 19.002613845, 19.979014051, 20.95965708, 21.949030935, 22.966165397, 24], False, 3, [1, 1, 1, 1, 1, 1, 1, 1, 1, 1, 1, 1, 1, 1, 1, 1, 1, 1, 1, 1, 1, 1, 1, 1, 1, 1, 1], False), False)
sketch7.addGeometry(Part.BSplineCurve([V(14.695513, -52.948718, 0), V(14.303395, -53.416037, 0), V(13.524446, -54.344376, 0), V(12.271262, -55.647967, 0), V(10.965229, -56.869272, 0), V(9.606847, -58.014109, 0), V(8.171664, -59.042445, 0), V(6.694448, -60.007867, 0), V(5.150488, -60.873222, 0), V(3.015453, -61.922481, 0), V(0.222496, -63.017404, 0), V(-3.293401, -63.935469, 0), V(-6.963623, -64.519892, 0), V(-9.467575, -64.583189, 0), V(-10.741186, -64.615385, 0)], [4, 1, 1, 1, 1, 1, 1, 1, 1, 1, 1, 1, 4], [0, 0.757959112, 1.505699292, 2.245454638, 2.979532153, 3.711538275, 4.438200793, 5.171680507, 5.909471876, 7.393775596, 8.890124382, 10.418191784, 12], False, 3, [1, 1, 1, 1, 1, 1, 1, 1, 1, 1, 1, 1, 1, 1, 1], False), False)
add_polygon(sketch7, [(74.038462, -70), (34.551282, -70), (34.551282, 0), (74.038462, 0), (74.038462, -7.179487), (40.833333, -7.179487), (40.833333, -34.102564), (74.038462, -34.102564), (74.038462, -41.282051), (40.833333, -41.282051), (40.833333, -62.820513), (74.038462, -62.820513)])
sketch7.addConstraint([
    Sketcher.Constraint("Block", 5),
    Sketcher.Constraint("Block", 6),
    Sketcher.Constraint("Block", 7),
    Sketcher.Constraint("Block", 8),
    Sketcher.Constraint("Block", 9),
    Sketcher.Constraint("Block", 11),
    Sketcher.Constraint("Block", 12),
    Sketcher.Constraint("Block", 13),
    Sketcher.Constraint("Block", 14),
    Sketcher.Constraint("Coincident", 4, 2, 5, 2),
    Sketcher.Constraint("Coincident", 9, 1, 10, 1),
    Sketcher.Constraint("Coincident", 10, 2, 11, 2),
    Sketcher.Constraint("Coincident", 14, 1, 4, 1),
    Sketcher.Constraint("Vertical", 0),
    Sketcher.Constraint("Horizontal", 1),
    Sketcher.Constraint("Vertical", 2),
    Sketcher.Constraint("Horizontal", 3),
    Sketcher.Constraint("Horizontal", 15),
    Sketcher.Constraint("Vertical", 16),
    Sketcher.Constraint("Horizontal", 17),
    Sketcher.Constraint("Vertical", 18),
    Sketcher.Constraint("Horizontal", 19),
    Sketcher.Constraint("Vertical", 20),
    Sketcher.Constraint("Horizontal", 21),
    Sketcher.Constraint("Vertical", 22),
    Sketcher.Constraint("Horizontal", 23),
    Sketcher.Constraint("Vertical", 24),
    Sketcher.Constraint("Horizontal", 25),
    Sketcher.Constraint("Vertical", 26),
    Sketcher.Constraint("PointOnObject", 0, 2, -1),
    Sketcher.Constraint("PointOnObject", 16, 2, -1),
    Sketcher.Constraint("Horizontal", 3, 2, 15, 2),
    Sketcher.Constraint("Vertical", 18, 2, 21, 2),
    Sketcher.Constraint("Vertical", 20, 2, 23, 2),
    Sketcher.Constraint("Vertical", 22, 2, 25, 2),
    Sketcher.Constraint("Equal", 18, 22),
    Sketcher.Constraint("Equal", 22, 26),
    Sketcher.Constraint("DistanceY", 0, 1, 0, 2, 70.0),
    Sketcher.Constraint("DistanceX", 1, 1, 1, 2, 6.282051),
    Sketcher.Constraint("DistanceX", 15, 2, 15, 1, 39.487179),
    Sketcher.Constraint("DistanceX", 19, 2, 19, 1, 33.205128),
    Sketcher.Constraint("DistanceY", 24, 2, 24, 1, 21.538462),
    Sketcher.Constraint("DistanceY", 18, 2, 18, 1, 7.179487),
    Sketcher.Constraint("DistanceX", -1, 1, 17, 2, 74.038462),
    Sketcher.Constraint("DistanceX", 0, 2, 10, 2, 83.349359),
])
pocket3 = body.newObject("PartDesign::Pocket", "Pocket002")
pocket3.Profile = sketch7
pocket3.Length = 20
pocket3.Reversed = True

doc.recompute()
